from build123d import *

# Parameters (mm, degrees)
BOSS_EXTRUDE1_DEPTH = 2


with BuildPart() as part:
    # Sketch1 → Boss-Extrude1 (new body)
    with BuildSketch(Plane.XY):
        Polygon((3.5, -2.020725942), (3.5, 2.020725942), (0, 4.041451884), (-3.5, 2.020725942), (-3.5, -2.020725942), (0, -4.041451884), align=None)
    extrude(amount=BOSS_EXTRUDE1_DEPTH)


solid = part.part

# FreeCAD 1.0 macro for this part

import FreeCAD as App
import Part
import Sketcher
Q = App.Units.Quantity


def add_polygon(sketch, points):
    """Adds a closed chain of lines whose ends are joined by coincident constraints."""
    first, n = sketch.GeometryCount, len(points)
    for a, b in zip(points, points[1:] + points[:1]):
        sketch.addGeometry(Part.LineSegment(App.Vector(*a, 0), App.Vector(*b, 0)), False)
    for i in range(n):
        sketch.addConstraint(Sketcher.Constraint("Coincident", first + i, 2, first + (i + 1) % n, 1))

doc = App.newDocument("Part")
body = doc.addObject("PartDesign::Body", "Body")

sketch1 = body.newObject("Sketcher::SketchObject", "Sketch")
sketch1.AttachmentSupport = (doc.getObject("XY_Plane"), [""])
sketch1.MapMode = "FlatFace"
add_polygon(sketch1, [(3.5, -2), (3.5, 2), (0, 4), (-3.5, 2), (-3.5, -2), (0, -4)])
sketch1.addConstraint(Sketcher.Constraint("Vertical", 0))
sketch1.addConstraint(Sketcher.Constraint("Vertical", 3))
sketch1.addConstraint(Sketcher.Constraint("Symmetric", 0, 2, 3, 2, -1, 1))
sketch1.addConstraint(Sketcher.Constraint("Symmetric", 1, 2, 4, 2, -1, 1))
sketch1.addConstraint(Sketcher.Constraint("PointOnObject", 1, 2, -2))
sketch1.addConstraint(Sketcher.Constraint("Parallel", 2, 5))
sketch1.addConstraint(Sketcher.Constraint("Horizontal", 0, 2, 2, 2))
sketch1.addConstraint(Sketcher.Constraint("Angle", 1, Q("150 deg")))
sketch1.addConstraint(Sketcher.Constraint("DistanceX", 2, 2, 0, 2, 7.0))
sketch1.addConstraint(Sketcher.Constraint("DistanceY", 0, 1, 0, 2, 4.041452))
pad1 = body.newObject("PartDesign::Pad", "Pad")
pad1.Profile = sketch1
pad1.Length = 2

doc.recompute()
